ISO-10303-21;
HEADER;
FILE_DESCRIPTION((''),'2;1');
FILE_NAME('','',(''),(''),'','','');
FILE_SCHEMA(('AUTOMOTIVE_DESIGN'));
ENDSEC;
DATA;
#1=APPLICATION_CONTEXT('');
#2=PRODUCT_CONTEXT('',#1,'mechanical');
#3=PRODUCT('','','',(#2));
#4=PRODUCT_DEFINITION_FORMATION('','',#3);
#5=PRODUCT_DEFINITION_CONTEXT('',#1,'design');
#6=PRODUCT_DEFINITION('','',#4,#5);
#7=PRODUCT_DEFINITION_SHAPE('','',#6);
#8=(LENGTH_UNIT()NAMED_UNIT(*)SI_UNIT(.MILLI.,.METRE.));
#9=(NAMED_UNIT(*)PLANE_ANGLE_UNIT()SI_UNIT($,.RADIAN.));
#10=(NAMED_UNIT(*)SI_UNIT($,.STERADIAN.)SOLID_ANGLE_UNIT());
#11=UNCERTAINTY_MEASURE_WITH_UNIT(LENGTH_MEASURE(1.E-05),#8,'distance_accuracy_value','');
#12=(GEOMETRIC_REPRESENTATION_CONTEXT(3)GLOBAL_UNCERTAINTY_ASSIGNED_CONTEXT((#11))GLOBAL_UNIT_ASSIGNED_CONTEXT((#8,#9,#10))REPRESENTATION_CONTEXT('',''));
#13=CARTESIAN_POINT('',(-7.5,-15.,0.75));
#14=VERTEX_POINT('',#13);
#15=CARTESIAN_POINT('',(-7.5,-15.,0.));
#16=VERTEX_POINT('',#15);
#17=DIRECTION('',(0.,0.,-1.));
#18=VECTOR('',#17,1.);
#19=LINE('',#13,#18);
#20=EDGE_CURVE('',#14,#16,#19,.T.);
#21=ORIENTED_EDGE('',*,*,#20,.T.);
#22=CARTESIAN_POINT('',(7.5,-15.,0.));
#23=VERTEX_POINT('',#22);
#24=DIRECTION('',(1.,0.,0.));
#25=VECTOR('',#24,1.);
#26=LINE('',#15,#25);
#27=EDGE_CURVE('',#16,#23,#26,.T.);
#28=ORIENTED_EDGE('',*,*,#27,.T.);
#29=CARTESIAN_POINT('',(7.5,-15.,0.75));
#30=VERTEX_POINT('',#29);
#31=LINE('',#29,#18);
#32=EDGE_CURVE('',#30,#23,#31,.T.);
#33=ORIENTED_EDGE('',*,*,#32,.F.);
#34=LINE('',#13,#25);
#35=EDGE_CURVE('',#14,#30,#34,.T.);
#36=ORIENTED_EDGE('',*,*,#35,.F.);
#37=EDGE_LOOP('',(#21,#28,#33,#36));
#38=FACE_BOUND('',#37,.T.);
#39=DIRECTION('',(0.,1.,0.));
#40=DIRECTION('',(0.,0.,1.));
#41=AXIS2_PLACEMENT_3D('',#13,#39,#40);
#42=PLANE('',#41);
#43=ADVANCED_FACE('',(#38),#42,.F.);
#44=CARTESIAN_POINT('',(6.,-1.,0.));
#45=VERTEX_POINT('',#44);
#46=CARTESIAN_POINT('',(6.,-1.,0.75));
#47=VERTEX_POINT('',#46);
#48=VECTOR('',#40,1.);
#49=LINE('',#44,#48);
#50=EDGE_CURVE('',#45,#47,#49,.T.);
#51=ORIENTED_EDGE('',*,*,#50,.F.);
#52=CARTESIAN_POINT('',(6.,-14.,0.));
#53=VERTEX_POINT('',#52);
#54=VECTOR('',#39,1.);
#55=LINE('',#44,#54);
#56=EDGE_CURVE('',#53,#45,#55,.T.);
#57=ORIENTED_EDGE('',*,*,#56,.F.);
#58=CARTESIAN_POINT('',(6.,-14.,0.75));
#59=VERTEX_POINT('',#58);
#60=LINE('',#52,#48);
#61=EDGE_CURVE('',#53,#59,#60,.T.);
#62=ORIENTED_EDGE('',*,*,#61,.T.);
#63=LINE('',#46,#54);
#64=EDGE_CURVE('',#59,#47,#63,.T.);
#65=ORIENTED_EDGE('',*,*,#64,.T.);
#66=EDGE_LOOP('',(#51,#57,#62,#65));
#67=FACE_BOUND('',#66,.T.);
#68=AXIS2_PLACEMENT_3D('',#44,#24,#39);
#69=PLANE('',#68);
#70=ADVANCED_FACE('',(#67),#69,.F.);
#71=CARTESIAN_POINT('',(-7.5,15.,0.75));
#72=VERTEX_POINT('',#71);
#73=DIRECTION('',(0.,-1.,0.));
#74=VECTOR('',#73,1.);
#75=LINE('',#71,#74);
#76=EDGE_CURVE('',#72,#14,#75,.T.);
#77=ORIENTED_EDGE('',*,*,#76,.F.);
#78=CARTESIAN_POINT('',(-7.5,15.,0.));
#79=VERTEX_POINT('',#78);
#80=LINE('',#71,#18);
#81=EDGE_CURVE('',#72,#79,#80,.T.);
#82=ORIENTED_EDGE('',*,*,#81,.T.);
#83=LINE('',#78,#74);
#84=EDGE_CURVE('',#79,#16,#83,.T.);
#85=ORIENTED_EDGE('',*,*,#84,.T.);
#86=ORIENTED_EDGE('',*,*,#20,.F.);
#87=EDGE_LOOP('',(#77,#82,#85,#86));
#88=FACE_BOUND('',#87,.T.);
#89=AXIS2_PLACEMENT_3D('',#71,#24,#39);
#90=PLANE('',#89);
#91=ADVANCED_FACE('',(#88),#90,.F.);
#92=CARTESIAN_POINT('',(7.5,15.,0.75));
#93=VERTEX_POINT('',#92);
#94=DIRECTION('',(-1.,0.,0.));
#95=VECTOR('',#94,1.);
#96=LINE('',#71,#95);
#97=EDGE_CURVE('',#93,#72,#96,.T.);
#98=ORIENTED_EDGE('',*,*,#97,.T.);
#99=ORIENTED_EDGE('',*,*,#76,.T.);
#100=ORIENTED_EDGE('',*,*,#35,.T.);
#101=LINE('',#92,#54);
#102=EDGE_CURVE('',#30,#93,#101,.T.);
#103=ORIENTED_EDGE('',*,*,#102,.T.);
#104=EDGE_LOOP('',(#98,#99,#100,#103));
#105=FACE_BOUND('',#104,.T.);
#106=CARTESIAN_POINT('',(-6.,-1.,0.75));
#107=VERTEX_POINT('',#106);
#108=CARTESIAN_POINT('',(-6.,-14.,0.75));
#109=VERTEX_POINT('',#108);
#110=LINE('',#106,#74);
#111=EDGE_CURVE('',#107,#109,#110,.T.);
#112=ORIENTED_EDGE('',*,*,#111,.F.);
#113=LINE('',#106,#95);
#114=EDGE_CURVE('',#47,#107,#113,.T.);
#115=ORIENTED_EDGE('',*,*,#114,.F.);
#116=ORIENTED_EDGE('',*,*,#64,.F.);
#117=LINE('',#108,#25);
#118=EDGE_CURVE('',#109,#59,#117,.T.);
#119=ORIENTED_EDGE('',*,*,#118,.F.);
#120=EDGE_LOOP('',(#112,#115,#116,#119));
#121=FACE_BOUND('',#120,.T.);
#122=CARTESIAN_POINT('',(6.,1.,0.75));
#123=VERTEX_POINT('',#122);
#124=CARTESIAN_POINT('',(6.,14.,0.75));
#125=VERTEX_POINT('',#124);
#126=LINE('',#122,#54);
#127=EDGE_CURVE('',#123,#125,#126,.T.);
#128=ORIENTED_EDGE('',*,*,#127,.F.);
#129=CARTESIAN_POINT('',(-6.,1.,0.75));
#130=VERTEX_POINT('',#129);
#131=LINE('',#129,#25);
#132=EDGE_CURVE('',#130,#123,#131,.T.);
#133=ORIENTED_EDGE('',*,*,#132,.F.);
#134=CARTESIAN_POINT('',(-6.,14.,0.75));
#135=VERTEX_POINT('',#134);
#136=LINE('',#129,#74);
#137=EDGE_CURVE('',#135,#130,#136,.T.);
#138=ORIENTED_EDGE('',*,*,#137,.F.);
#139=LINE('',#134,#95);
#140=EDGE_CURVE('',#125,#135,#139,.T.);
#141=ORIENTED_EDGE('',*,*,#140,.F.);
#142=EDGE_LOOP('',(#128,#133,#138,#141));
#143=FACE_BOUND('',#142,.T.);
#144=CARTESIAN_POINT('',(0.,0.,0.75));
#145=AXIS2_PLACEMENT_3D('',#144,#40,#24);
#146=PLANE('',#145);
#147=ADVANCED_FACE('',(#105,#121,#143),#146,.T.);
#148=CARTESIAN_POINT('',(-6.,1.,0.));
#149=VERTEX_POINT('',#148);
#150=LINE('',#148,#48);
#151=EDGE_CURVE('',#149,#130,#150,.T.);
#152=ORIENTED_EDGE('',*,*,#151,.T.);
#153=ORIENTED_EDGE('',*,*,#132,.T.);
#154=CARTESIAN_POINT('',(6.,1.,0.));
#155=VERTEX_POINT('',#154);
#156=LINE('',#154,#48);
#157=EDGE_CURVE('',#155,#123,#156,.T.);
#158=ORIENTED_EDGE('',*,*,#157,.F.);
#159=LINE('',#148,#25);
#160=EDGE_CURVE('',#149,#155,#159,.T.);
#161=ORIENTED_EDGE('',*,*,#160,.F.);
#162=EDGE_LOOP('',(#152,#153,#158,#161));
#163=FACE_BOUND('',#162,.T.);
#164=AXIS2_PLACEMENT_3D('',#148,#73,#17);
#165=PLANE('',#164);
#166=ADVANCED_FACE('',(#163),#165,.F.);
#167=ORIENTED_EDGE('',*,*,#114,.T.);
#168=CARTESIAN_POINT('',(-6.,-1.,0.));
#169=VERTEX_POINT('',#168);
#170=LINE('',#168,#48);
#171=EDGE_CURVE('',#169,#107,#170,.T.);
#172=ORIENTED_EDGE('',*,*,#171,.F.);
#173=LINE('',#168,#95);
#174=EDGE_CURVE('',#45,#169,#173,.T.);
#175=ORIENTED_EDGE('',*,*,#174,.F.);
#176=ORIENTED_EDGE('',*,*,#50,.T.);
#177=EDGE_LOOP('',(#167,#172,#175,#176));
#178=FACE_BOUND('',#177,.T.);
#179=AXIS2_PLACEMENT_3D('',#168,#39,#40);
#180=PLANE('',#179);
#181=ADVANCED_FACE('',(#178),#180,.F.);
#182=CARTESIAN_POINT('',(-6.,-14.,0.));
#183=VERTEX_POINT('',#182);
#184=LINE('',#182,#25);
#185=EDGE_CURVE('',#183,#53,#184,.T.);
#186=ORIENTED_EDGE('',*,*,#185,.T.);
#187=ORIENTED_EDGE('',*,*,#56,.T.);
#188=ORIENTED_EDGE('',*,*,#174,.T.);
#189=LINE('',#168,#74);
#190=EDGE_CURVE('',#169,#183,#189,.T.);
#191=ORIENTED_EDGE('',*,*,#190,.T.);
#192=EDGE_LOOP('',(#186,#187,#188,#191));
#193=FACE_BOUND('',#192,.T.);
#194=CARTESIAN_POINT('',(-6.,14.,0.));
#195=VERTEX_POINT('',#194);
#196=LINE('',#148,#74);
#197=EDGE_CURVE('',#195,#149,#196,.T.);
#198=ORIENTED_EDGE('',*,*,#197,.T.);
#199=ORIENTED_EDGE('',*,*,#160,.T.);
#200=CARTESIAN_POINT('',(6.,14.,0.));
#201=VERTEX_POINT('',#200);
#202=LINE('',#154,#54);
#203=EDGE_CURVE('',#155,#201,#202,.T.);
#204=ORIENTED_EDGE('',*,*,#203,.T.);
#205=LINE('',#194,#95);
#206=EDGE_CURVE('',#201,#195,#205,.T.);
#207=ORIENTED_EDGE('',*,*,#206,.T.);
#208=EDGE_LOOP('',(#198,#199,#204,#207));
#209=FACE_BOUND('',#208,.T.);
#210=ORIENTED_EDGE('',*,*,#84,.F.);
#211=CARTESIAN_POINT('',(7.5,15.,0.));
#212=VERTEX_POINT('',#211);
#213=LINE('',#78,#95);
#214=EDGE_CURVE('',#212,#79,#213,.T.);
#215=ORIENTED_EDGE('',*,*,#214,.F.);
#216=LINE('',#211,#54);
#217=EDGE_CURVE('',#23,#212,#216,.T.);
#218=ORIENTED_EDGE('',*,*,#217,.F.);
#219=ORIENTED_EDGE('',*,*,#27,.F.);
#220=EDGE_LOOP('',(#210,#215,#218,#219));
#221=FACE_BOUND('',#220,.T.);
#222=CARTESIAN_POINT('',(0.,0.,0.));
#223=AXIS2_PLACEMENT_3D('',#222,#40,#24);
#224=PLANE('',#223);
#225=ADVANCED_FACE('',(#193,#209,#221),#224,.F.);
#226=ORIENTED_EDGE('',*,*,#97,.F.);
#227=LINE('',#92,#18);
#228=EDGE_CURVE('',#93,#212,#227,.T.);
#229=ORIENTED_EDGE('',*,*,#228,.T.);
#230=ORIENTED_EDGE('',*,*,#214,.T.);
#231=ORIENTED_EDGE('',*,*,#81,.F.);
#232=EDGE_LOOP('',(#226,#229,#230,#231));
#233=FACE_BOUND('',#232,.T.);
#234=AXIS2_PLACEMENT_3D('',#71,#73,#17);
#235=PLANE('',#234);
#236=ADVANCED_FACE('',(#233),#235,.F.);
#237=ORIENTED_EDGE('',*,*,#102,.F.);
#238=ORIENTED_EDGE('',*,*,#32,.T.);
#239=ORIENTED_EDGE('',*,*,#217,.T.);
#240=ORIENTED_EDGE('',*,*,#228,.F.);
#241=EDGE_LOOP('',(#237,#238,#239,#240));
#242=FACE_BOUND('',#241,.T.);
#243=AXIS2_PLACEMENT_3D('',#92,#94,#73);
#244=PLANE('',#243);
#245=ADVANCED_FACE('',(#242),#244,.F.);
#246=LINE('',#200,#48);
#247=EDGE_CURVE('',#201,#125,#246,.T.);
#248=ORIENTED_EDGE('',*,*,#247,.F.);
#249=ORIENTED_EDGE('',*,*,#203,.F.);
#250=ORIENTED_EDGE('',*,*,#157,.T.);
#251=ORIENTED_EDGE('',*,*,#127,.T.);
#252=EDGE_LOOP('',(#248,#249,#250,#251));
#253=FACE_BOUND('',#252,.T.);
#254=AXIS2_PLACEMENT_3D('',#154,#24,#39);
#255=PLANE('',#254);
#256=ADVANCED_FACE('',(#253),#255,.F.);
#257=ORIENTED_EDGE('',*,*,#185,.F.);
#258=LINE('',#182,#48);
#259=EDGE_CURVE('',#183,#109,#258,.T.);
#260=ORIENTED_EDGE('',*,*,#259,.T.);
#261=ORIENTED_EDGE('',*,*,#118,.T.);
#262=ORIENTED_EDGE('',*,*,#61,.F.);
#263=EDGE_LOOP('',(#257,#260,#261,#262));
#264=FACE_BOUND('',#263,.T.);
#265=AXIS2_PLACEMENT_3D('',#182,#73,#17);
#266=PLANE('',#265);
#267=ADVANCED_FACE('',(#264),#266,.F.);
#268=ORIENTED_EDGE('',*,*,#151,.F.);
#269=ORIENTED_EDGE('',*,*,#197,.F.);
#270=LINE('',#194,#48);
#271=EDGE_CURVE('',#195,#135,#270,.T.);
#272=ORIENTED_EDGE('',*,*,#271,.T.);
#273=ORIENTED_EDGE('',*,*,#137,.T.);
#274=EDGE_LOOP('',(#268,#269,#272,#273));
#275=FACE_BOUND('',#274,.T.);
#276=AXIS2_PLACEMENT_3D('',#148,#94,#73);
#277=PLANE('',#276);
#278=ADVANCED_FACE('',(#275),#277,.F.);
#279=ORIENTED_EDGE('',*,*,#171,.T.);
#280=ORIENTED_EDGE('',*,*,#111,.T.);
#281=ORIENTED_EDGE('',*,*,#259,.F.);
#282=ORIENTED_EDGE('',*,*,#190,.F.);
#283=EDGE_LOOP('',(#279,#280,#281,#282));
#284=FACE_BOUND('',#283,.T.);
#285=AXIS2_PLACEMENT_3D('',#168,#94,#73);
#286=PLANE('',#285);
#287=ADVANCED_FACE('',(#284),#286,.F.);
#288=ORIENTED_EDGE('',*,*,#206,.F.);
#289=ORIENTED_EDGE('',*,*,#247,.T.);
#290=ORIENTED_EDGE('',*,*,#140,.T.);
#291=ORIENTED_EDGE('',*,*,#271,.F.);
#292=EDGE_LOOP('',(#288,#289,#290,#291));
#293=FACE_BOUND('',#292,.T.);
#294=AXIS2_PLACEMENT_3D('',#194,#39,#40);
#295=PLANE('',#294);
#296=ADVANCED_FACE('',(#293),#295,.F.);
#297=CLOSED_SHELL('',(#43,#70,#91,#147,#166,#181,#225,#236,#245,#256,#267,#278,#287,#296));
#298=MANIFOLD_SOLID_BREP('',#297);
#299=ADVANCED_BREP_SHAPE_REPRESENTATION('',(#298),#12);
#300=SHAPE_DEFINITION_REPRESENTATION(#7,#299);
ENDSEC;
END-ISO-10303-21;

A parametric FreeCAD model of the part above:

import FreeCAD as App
import Part
import Sketcher

V = App.Vector


def add_polygon(sketch, points):
    """Adds a closed chain of lines whose ends are joined by coincident constraints."""
    first, n = sketch.GeometryCount, len(points)
    for a, b in zip(points, points[1:] + points[:1]):
        sketch.addGeometry(Part.LineSegment(App.Vector(*a, 0), App.Vector(*b, 0)), False)
    for i in range(n):
        sketch.addConstraint(Sketcher.Constraint("Coincident", first + i, 2, first + (i + 1) % n, 1))

doc = App.newDocument("Part")
body = doc.addObject("PartDesign::Body", "Body")

# Sketch on XY plane
sketch1 = body.newObject("Sketcher::SketchObject", "Sketch")
sketch1.AttachmentSupport = (doc.getObject("XY_Plane"), [""])
sketch1.MapMode = "FlatFace"
add_polygon(sketch1, [(-7.5, 15), (-7.5, -15), (7.5, -15), (7.5, 15)])  # lines 0-3
sketch1.addConstraint([
    Sketcher.Constraint("Vertical", 0),
    Sketcher.Constraint("Horizontal", 1),
    Sketcher.Constraint("Vertical", 2),
    Sketcher.Constraint("Horizontal", 3),
    Sketcher.Constraint("Symmetric", 0, 2, 2, 2, -1, 1),
    Sketcher.Constraint("DistanceX", 1, 1, 1, 2, 15.0),
    Sketcher.Constraint("DistanceY", 0, 2, 0, 1, 30.0),
])
pad1 = body.newObject("PartDesign::Pad", "Pad")
pad1.Profile = sketch1
pad1.Length = 0.75

# Sketch on XY plane
sketch2 = body.newObject("Sketcher::SketchObject", "Sketch001")
sketch2.AttachmentSupport = (doc.getObject("XY_Plane"), [""])
sketch2.MapMode = "FlatFace"
sketch2.AttachmentOffset = App.Placement(V(0, 0, 0.75), App.Rotation())
add_polygon(sketch2, [(-6, 14), (-6, 1), (6, 1), (6, 14)])  # lines 0-3
add_polygon(sketch2, [(-6, -1), (-6, -14), (6, -14), (6, -1)])  # lines 4-7
sketch2.addConstraint([
    Sketcher.Constraint("Vertical", 0),
    Sketcher.Constraint("Horizontal", 1),
    Sketcher.Constraint("Vertical", 2),
    Sketcher.Constraint("Horizontal", 3),
    Sketcher.Constraint("Vertical", 4),
    Sketcher.Constraint("Horizontal", 5),
    Sketcher.Constraint("Vertical", 6),
    Sketcher.Constraint("Horizontal", 7),
    Sketcher.Constraint("Symmetric", 2, 2, 4, 2, -1, 1),
    Sketcher.Constraint("Symmetric", 0, 2, 6, 2, -1, 1),
    Sketcher.Constraint("Vertical", 3, 2, 4, 2),
    Sketcher.Constraint("DistanceX", 1, 1, 1, 2, 12.0),
    Sketcher.Constraint("DistanceY", 0, 2, 0, 1, 13.0),
    Sketcher.Constraint("DistanceY", -1, 1, 0, 2, 1.0),
])
pocket1 = body.newObject("PartDesign::Pocket", "Pocket")
pocket1.Profile = sketch2
pocket1.Length = 0.75

doc.recompute()
